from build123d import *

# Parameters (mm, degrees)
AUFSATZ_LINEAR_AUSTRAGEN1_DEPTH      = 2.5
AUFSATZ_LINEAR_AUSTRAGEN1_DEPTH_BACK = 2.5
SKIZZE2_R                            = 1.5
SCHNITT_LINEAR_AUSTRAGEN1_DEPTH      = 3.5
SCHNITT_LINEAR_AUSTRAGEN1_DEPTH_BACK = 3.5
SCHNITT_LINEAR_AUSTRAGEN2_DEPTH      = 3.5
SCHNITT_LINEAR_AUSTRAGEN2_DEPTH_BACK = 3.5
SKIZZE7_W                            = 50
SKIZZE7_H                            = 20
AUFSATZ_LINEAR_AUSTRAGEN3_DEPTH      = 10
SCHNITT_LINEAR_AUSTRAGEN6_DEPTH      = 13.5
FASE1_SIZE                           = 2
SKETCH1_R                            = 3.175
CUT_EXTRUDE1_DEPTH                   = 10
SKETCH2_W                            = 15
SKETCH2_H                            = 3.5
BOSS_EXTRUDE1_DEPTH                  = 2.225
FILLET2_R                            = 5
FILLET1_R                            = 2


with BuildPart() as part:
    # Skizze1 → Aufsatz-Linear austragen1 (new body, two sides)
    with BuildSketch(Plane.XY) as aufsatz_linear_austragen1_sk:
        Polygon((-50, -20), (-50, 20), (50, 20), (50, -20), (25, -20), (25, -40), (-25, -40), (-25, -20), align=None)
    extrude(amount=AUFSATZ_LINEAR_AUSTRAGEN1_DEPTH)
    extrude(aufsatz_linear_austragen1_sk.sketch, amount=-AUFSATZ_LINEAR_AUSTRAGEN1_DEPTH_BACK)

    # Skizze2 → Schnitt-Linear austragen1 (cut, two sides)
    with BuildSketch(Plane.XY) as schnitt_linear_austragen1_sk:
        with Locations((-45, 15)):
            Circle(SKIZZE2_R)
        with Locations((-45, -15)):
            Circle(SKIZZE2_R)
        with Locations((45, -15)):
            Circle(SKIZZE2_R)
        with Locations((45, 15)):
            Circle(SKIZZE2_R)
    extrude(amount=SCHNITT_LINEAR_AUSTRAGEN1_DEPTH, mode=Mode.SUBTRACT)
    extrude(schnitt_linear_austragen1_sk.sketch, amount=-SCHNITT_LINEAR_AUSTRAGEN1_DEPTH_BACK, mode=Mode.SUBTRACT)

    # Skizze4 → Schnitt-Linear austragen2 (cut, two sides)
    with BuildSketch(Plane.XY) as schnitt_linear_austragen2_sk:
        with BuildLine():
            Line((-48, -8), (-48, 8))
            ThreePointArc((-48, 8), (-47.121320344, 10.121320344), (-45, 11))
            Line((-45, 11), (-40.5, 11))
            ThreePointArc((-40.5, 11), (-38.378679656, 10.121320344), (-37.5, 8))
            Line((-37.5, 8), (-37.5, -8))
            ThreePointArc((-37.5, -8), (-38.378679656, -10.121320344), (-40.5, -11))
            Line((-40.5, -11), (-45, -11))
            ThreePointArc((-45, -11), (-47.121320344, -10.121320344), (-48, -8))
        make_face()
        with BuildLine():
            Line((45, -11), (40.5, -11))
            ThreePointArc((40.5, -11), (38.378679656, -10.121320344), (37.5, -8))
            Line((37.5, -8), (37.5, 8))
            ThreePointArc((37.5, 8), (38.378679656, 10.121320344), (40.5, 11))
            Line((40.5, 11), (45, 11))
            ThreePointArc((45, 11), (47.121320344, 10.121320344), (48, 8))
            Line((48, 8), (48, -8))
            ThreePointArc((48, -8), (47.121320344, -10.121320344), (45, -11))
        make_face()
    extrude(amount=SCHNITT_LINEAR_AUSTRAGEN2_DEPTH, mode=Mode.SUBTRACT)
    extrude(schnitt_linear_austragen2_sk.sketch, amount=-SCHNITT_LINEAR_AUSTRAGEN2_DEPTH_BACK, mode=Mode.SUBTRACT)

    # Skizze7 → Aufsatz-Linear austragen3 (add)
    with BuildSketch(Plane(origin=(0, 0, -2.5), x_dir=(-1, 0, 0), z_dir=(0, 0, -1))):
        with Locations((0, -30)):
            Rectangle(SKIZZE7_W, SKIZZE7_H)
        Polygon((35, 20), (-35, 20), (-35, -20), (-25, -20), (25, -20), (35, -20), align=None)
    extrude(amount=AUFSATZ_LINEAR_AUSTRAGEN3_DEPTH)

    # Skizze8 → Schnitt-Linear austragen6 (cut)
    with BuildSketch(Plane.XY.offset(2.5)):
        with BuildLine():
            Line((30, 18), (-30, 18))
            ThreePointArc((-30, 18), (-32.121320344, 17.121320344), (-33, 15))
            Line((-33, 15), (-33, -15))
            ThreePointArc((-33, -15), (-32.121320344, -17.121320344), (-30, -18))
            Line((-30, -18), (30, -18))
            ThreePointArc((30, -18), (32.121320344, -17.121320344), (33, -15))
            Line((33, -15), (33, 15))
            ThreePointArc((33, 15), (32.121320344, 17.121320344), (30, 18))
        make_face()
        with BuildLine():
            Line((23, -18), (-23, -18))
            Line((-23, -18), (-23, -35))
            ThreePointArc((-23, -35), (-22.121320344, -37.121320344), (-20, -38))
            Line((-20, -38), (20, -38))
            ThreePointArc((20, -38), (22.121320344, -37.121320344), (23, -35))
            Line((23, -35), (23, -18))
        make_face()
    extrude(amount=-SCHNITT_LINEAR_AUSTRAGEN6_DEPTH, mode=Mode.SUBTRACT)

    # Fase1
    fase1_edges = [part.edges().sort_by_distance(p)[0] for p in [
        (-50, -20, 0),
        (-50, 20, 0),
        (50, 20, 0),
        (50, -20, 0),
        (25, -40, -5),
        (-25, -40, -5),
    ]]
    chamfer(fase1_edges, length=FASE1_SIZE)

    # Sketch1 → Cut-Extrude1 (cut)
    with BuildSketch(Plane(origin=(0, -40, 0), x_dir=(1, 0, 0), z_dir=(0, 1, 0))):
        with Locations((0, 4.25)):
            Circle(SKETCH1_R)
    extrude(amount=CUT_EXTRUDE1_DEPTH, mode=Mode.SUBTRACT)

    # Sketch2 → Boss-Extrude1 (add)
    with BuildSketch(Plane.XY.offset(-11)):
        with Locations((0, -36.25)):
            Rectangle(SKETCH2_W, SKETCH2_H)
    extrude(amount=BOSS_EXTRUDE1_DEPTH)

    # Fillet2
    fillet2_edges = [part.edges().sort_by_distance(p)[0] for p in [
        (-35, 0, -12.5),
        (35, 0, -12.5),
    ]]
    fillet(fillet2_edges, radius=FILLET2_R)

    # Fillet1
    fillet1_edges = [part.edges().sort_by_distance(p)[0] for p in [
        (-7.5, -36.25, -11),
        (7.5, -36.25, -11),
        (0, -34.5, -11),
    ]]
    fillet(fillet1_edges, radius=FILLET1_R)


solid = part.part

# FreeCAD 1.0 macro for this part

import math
import FreeCAD as App
import Part
import Sketcher
from FreeCAD import Vector


def edges_at(feature, points):
    """Names of the edges that pass closest to the given points."""
    edges = feature.Shape.Edges
    near = lambda p: min(range(len(edges)), key=lambda i: edges[i].distToShape(Part.Vertex(*p))[0])
    return sorted({f"Edge{near(p) + 1}" for p in points})


def add_polygon(sketch, points):
    """Adds a closed chain of lines whose ends are joined by coincident constraints."""
    first, n = sketch.GeometryCount, len(points)
    for a, b in zip(points, points[1:] + points[:1]):
        sketch.addGeometry(Part.LineSegment(App.Vector(*a, 0), App.Vector(*b, 0)), False)
    for i in range(n):
        sketch.addConstraint(Sketcher.Constraint("Coincident", first + i, 2, first + (i + 1) % n, 1))

doc = App.newDocument("Part")
body = doc.addObject("PartDesign::Body", "Body")

# Sketch on XY plane
sketch1 = body.newObject("Sketcher::SketchObject", "Sketch")
sketch1.AttachmentSupport = (doc.getObject("XY_Plane"), [""])
sketch1.MapMode = "FlatFace"
add_polygon(sketch1, [(-50, 20), (-50, -20), (-25, -20), (-25, -40), (25, -40), (25, -20), (50, -20), (50, 20)])  # lines 0-7
sketch1.addConstraint([
    Sketcher.Constraint("Vertical", 0),
    Sketcher.Constraint("Horizontal", 1),
    Sketcher.Constraint("Vertical", 2),
    Sketcher.Constraint("Horizontal", 3),
    Sketcher.Constraint("Vertical", 4),
    Sketcher.Constraint("Horizontal", 5),
    Sketcher.Constraint("Vertical", 6),
    Sketcher.Constraint("Horizontal", 7),
    Sketcher.Constraint("Symmetric", 0, 2, 6, 2, -1, 1),
    Sketcher.Constraint("Symmetric", 1, 2, 4, 2, -2),
    Sketcher.Constraint("DistanceX", 1, 1, 1, 2, 25.0),
    Sketcher.Constraint("DistanceX", 3, 1, 3, 2, 50.0),
    Sketcher.Constraint("DistanceY", 0, 2, 0, 1, 40.0),
    Sketcher.Constraint("DistanceY", 2, 2, 2, 1, 20.0),
])
pad1 = body.newObject("PartDesign::Pad", "Pad")
pad1.Profile = sketch1
pad1.Type = "TwoLengths"
pad1.Length = 2.5
pad1.Length2 = 2.5

# Sketch on XY plane
sketch2 = body.newObject("Sketcher::SketchObject", "Sketch001")
sketch2.AttachmentSupport = (doc.getObject("XY_Plane"), [""])
sketch2.MapMode = "FlatFace"
sketch2.addGeometry([
    Part.Circle(Vector(-45, 15, 0), Vector(0, 0, 1), 1.5),
    Part.Circle(Vector(-45, -15, 0), Vector(0, 0, 1), 1.5),
    Part.Circle(Vector(45, -15, 0), Vector(0, 0, 1), 1.5),
    Part.Circle(Vector(45, 15, 0), Vector(0, 0, 1), 1.5),
], False)
sketch2.addConstraint([
    Sketcher.Constraint("Equal", 0, 1),
    Sketcher.Constraint("Equal", 1, 2),
    Sketcher.Constraint("Equal", 2, 3),
    Sketcher.Constraint("Symmetric", 0, 3, 2, 3, -1, 1),
    Sketcher.Constraint("Symmetric", 1, 3, 3, 3, -1, 1),
    Sketcher.Constraint("Symmetric", 1, 3, 2, 3, -2),
    Sketcher.Constraint("Diameter", 0, 3.0),
    Sketcher.Constraint("DistanceX", 0, 3, -1, 1, 45.0),
    Sketcher.Constraint("DistanceY", -1, 1, 0, 3, 15.0),
])
pocket1 = body.newObject("PartDesign::Pocket", "Pocket")
pocket1.Profile = sketch2
pocket1.Type = "ThroughAll"
pocket1.Midplane = True

# Sketch on XY plane
sketch3 = body.newObject("Sketcher::SketchObject", "Sketch002")
sketch3.AttachmentSupport = (doc.getObject("XY_Plane"), [""])
sketch3.MapMode = "FlatFace"
sketch3.addGeometry([
    Part.LineSegment(Vector(-48, 8, 0), Vector(-48, -8, 0)),  # 0
    Part.ArcOfCircle(Part.Circle(Vector(-45, -8, 0), Vector(0, 0, 1), 3), math.radians(180), math.radians(270)),  # 1
    Part.LineSegment(Vector(-45, -11, 0), Vector(-40.5, -11, 0)),  # 2
    Part.ArcOfCircle(Part.Circle(Vector(-40.5, -8, 0), Vector(0, 0, 1), 3), math.radians(-90), math.radians(0)),  # 3
    Part.LineSegment(Vector(-37.5, -8, 0), Vector(-37.5, 8, 0)),  # 4
    Part.ArcOfCircle(Part.Circle(Vector(-40.5, 8, 0), Vector(0, 0, 1), 3), math.radians(0), math.radians(90)),  # 5
    Part.LineSegment(Vector(-40.5, 11, 0), Vector(-45, 11, 0)),  # 6
    Part.ArcOfCircle(Part.Circle(Vector(-45, 8, 0), Vector(0, 0, 1), 3), math.radians(90), math.radians(180)),  # 7
    Part.LineSegment(Vector(40.5, -11, 0), Vector(45, -11, 0)),  # 8
    Part.ArcOfCircle(Part.Circle(Vector(45, -8, 0), Vector(0, 0, 1), 3), math.radians(-90), math.radians(0)),  # 9
    Part.LineSegment(Vector(48, -8, 0), Vector(48, 8, 0)),  # 10
    Part.ArcOfCircle(Part.Circle(Vector(45, 8, 0), Vector(0, 0, 1), 3), math.radians(0), math.radians(90)),  # 11
    Part.LineSegment(Vector(45, 11, 0), Vector(40.5, 11, 0)),  # 12
    Part.ArcOfCircle(Part.Circle(Vector(40.5, 8, 0), Vector(0, 0, 1), 3), math.radians(90), math.radians(180)),  # 13
    Part.LineSegment(Vector(37.5, 8, 0), Vector(37.5, -8, 0)),  # 14
    Part.ArcOfCircle(Part.Circle(Vector(40.5, -8, 0), Vector(0, 0, 1), 3), math.radians(180), math.radians(270)),  # 15
], False)
sketch3.addConstraint([
    Sketcher.Constraint("Tangent", 0, 2, 1, 1),
    Sketcher.Constraint("Tangent", 1, 2, 2, 1),
    Sketcher.Constraint("Tangent", 2, 2, 3, 1),
    Sketcher.Constraint("Tangent", 3, 2, 4, 1),
    Sketcher.Constraint("Tangent", 4, 2, 5, 1),
    Sketcher.Constraint("Tangent", 5, 2, 6, 1),
    Sketcher.Constraint("Tangent", 6, 2, 7, 1),
    Sketcher.Constraint("Tangent", 7, 2, 0, 1),
    Sketcher.Constraint("Tangent", 8, 2, 9, 1),
    Sketcher.Constraint("Tangent", 9, 2, 10, 1),
    Sketcher.Constraint("Tangent", 10, 2, 11, 1),
    Sketcher.Constraint("Tangent", 11, 2, 12, 1),
    Sketcher.Constraint("Tangent", 12, 2, 13, 1),
    Sketcher.Constraint("Tangent", 13, 2, 14, 1),
    Sketcher.Constraint("Tangent", 14, 2, 15, 1),
    Sketcher.Constraint("Tangent", 15, 2, 8, 1),
    Sketcher.Constraint("Vertical", 0),
    Sketcher.Constraint("Horizontal", 2),
    Sketcher.Constraint("Vertical", 4),
    Sketcher.Constraint("Horizontal", 6),
    Sketcher.Constraint("Horizontal", 8),
    Sketcher.Constraint("Vertical", 10),
    Sketcher.Constraint("Horizontal", 12),
    Sketcher.Constraint("Vertical", 14),
    Sketcher.Constraint("Equal", 1, 3),
    Sketcher.Constraint("Equal", 3, 5),
    Sketcher.Constraint("Equal", 5, 7),
    Sketcher.Constraint("Equal", 7, 9),
    Sketcher.Constraint("Equal", 9, 11),
    Sketcher.Constraint("Equal", 11, 13),
    Sketcher.Constraint("Equal", 13, 15),
    Sketcher.Constraint("Symmetric", 7, 3, 9, 3, -1, 1),
    Sketcher.Constraint("Symmetric", 3, 3, 13, 3, -1, 1),
    Sketcher.Constraint("Horizontal", 3, 3, 9, 3),
    Sketcher.Constraint("Radius", 1, 3.0),
    Sketcher.Constraint("DistanceY", 0, 2, 0, 1, 16.0),
    Sketcher.Constraint("DistanceX", 2, 1, 2, 2, 4.5),
    Sketcher.Constraint("DistanceX", 1, 3, -1, 1, 45.0),
])
pocket2 = body.newObject("PartDesign::Pocket", "Pocket001")
pocket2.Profile = sketch3
pocket2.Type = "ThroughAll"
pocket2.Midplane = True

# Sketch on XY plane
sketch4 = body.newObject("Sketcher::SketchObject", "Sketch003")
sketch4.AttachmentSupport = (doc.getObject("XY_Plane"), [""])
sketch4.MapMode = "FlatFace"
sketch4.AttachmentOffset = App.Placement(Vector(0, 0, -2.5), App.Rotation())
add_polygon(sketch4, [(25, -20), (25, -40), (-25, -40), (-25, -20), (-35, -20), (-35, 20), (35, 20), (35, -20)])  # lines 0-7
sketch4.addConstraint([
    Sketcher.Constraint("Vertical", 0),
    Sketcher.Constraint("Horizontal", 1),
    Sketcher.Constraint("Vertical", 2),
    Sketcher.Constraint("Horizontal", 3),
    Sketcher.Constraint("Vertical", 4),
    Sketcher.Constraint("Horizontal", 5),
    Sketcher.Constraint("Vertical", 6),
    Sketcher.Constraint("Horizontal", 7),
    Sketcher.Constraint("Symmetric", 3, 2, 5, 2, -1, 1),
    Sketcher.Constraint("Symmetric", 2, 2, 7, 2, -2),
    Sketcher.Constraint("DistanceX", 1, 2, 1, 1, 50.0),
    Sketcher.Constraint("DistanceX", 3, 2, 3, 1, 10.0),
    Sketcher.Constraint("DistanceY", 0, 2, 0, 1, 20.0),
    Sketcher.Constraint("DistanceY", 4, 1, 4, 2, 40.0),
])
pad2 = body.newObject("PartDesign::Pad", "Pad001")
pad2.Profile = sketch4
pad2.Length = 10
pad2.Reversed = True

# Sketch on XY plane
sketch5 = body.newObject("Sketcher::SketchObject", "Sketch004")
sketch5.AttachmentSupport = (doc.getObject("XY_Plane"), [""])
sketch5.MapMode = "FlatFace"
sketch5.AttachmentOffset = App.Placement(Vector(0, 0, 2.5), App.Rotation())
sketch5.addGeometry([
    Part.LineSegment(Vector(30, 18, 0), Vector(-30, 18, 0)),  # 0
    Part.ArcOfCircle(Part.Circle(Vector(-30, 15, 0), Vector(0, 0, 1), 3), math.radians(90), math.radians(180)),  # 1
    Part.LineSegment(Vector(-33, 15, 0), Vector(-33, -15, 0)),  # 2
    Part.ArcOfCircle(Part.Circle(Vector(-30, -15, 0), Vector(0, 0, 1), 3), math.radians(180), math.radians(270)),  # 3
    Part.LineSegment(Vector(-30, -18, 0), Vector(-23, -18, 0)),  # 4
    Part.LineSegment(Vector(-23, -18, 0), Vector(-23, -35, 0)),  # 5
    Part.ArcOfCircle(Part.Circle(Vector(-20, -35, 0), Vector(0, 0, 1), 3), math.radians(180), math.radians(270)),  # 6
    Part.LineSegment(Vector(-20, -38, 0), Vector(20, -38, 0)),  # 7
    Part.ArcOfCircle(Part.Circle(Vector(20, -35, 0), Vector(0, 0, 1), 3), math.radians(-90), math.radians(0)),  # 8
    Part.LineSegment(Vector(23, -35, 0), Vector(23, -18, 0)),  # 9
    Part.LineSegment(Vector(23, -18, 0), Vector(30, -18, 0)),  # 10
    Part.ArcOfCircle(Part.Circle(Vector(30, -15, 0), Vector(0, 0, 1), 3), math.radians(-90), math.radians(0)),  # 11
    Part.LineSegment(Vector(33, -15, 0), Vector(33, 15, 0)),  # 12
    Part.ArcOfCircle(Part.Circle(Vector(30, 15, 0), Vector(0, 0, 1), 3), math.radians(0), math.radians(90)),  # 13
], False)
sketch5.addConstraint([
    Sketcher.Constraint("Tangent", 0, 2, 1, 1),
    Sketcher.Constraint("Tangent", 1, 2, 2, 1),
    Sketcher.Constraint("Tangent", 2, 2, 3, 1),
    Sketcher.Constraint("Tangent", 3, 2, 4, 1),
    Sketcher.Constraint("Coincident", 4, 2, 5, 1),
    Sketcher.Constraint("Tangent", 5, 2, 6, 1),
    Sketcher.Constraint("Tangent", 6, 2, 7, 1),
    Sketcher.Constraint("Tangent", 7, 2, 8, 1),
    Sketcher.Constraint("Tangent", 8, 2, 9, 1),
    Sketcher.Constraint("Coincident", 9, 2, 10, 1),
    Sketcher.Constraint("Tangent", 10, 2, 11, 1),
    Sketcher.Constraint("Tangent", 11, 2, 12, 1),
    Sketcher.Constraint("Tangent", 12, 2, 13, 1),
    Sketcher.Constraint("Tangent", 13, 2, 0, 1),
    Sketcher.Constraint("Horizontal", 0),
    Sketcher.Constraint("Vertical", 2),
    Sketcher.Constraint("Horizontal", 4),
    Sketcher.Constraint("Vertical", 5),
    Sketcher.Constraint("Horizontal", 7),
    Sketcher.Constraint("Vertical", 9),
    Sketcher.Constraint("Horizontal", 10),
    Sketcher.Constraint("Vertical", 12),
    Sketcher.Constraint("Equal", 1, 3),
    Sketcher.Constraint("Equal", 3, 6),
    Sketcher.Constraint("Equal", 6, 8),
    Sketcher.Constraint("Equal", 8, 11),
    Sketcher.Constraint("Equal", 11, 13),
    Sketcher.Constraint("Symmetric", 1, 3, 11, 3, -1, 1),
    Sketcher.Constraint("Symmetric", 4, 2, 9, 2, -2),
    Sketcher.Constraint("Radius", 1, 3.0),
    Sketcher.Constraint("DistanceX", 0, 2, 0, 1, 60.0),
    Sketcher.Constraint("DistanceX", 4, 1, 4, 2, 7.0),
    Sketcher.Constraint("DistanceY", 2, 2, 2, 1, 30.0),
    Sketcher.Constraint("DistanceY", 5, 2, 5, 1, 17.0),
])
pocket3 = body.newObject("PartDesign::Pocket", "Pocket002")
pocket3.Profile = sketch5
pocket3.Length = 13.5
doc.recompute()

chamfer = body.newObject("PartDesign::Chamfer", "Chamfer")
chamfer.Base = (pocket3, edges_at(pocket3, [
    (-50, -20, 0),
    (-50, 20, 0),
    (50, 20, 0),
    (50, -20, 0),
    (25, -40, -5),
    (-25, -40, -5),
]))
chamfer.Size = 2

# Sketch on XZ plane
sketch6 = body.newObject("Sketcher::SketchObject", "Sketch005")
sketch6.AttachmentSupport = (doc.getObject("XZ_Plane"), [""])
sketch6.MapMode = "FlatFace"
sketch6.AttachmentOffset = App.Placement(Vector(0, 0, 40), App.Rotation())
sketch6.addGeometry(Part.Circle(Vector(0, -4.25, 0), Vector(0, 0, 1), 3.175), False)
sketch6.addConstraint([
    Sketcher.Constraint("PointOnObject", 0, 3, -2),
    Sketcher.Constraint("Diameter", 0, 6.35),
    Sketcher.Constraint("DistanceY", 0, 3, -1, 1, 4.25),
])
pocket4 = body.newObject("PartDesign::Pocket", "Pocket003")
pocket4.Profile = sketch6
pocket4.Length = 10

# Sketch on XY plane
sketch7 = body.newObject("Sketcher::SketchObject", "Sketch006")
sketch7.AttachmentSupport = (doc.getObject("XY_Plane"), [""])
sketch7.MapMode = "FlatFace"
sketch7.AttachmentOffset = App.Placement(Vector(0, 0, -11), App.Rotation())
add_polygon(sketch7, [(-7.5, -34.5), (-7.5, -38), (7.5, -38), (7.5, -34.5)])  # lines 0-3
sketch7.addConstraint([
    Sketcher.Constraint("Vertical", 0),
    Sketcher.Constraint("Horizontal", 1),
    Sketcher.Constraint("Vertical", 2),
    Sketcher.Constraint("Horizontal", 3),
    Sketcher.Constraint("DistanceX", 1, 1, 1, 2, 15.0),
    Sketcher.Constraint("DistanceY", 0, 2, 0, 1, 3.5),
    Sketcher.Constraint("DistanceY", 0, 2, -1, 1, 38.0),
    Sketcher.Constraint("DistanceX", 0, 2, -1, 1, 7.5),
])
pad3 = body.newObject("PartDesign::Pad", "Pad002")
pad3.Profile = sketch7
pad3.Length = 2.225
doc.recompute()

fillet = body.newObject("PartDesign::Fillet", "Fillet")
fillet.Base = (pad3, edges_at(pad3, [(-35, 0, -12.5), (35, 0, -12.5)]))
fillet.Radius = 5
doc.recompute()

fillet2 = body.newObject("PartDesign::Fillet", "Fillet001")
fillet2.Base = (fillet, edges_at(fillet, [(-7.5, -36.25, -11), (7.5, -36.25, -11), (0, -34.5, -11)]))
fillet2.Radius = 2

doc.recompute()
